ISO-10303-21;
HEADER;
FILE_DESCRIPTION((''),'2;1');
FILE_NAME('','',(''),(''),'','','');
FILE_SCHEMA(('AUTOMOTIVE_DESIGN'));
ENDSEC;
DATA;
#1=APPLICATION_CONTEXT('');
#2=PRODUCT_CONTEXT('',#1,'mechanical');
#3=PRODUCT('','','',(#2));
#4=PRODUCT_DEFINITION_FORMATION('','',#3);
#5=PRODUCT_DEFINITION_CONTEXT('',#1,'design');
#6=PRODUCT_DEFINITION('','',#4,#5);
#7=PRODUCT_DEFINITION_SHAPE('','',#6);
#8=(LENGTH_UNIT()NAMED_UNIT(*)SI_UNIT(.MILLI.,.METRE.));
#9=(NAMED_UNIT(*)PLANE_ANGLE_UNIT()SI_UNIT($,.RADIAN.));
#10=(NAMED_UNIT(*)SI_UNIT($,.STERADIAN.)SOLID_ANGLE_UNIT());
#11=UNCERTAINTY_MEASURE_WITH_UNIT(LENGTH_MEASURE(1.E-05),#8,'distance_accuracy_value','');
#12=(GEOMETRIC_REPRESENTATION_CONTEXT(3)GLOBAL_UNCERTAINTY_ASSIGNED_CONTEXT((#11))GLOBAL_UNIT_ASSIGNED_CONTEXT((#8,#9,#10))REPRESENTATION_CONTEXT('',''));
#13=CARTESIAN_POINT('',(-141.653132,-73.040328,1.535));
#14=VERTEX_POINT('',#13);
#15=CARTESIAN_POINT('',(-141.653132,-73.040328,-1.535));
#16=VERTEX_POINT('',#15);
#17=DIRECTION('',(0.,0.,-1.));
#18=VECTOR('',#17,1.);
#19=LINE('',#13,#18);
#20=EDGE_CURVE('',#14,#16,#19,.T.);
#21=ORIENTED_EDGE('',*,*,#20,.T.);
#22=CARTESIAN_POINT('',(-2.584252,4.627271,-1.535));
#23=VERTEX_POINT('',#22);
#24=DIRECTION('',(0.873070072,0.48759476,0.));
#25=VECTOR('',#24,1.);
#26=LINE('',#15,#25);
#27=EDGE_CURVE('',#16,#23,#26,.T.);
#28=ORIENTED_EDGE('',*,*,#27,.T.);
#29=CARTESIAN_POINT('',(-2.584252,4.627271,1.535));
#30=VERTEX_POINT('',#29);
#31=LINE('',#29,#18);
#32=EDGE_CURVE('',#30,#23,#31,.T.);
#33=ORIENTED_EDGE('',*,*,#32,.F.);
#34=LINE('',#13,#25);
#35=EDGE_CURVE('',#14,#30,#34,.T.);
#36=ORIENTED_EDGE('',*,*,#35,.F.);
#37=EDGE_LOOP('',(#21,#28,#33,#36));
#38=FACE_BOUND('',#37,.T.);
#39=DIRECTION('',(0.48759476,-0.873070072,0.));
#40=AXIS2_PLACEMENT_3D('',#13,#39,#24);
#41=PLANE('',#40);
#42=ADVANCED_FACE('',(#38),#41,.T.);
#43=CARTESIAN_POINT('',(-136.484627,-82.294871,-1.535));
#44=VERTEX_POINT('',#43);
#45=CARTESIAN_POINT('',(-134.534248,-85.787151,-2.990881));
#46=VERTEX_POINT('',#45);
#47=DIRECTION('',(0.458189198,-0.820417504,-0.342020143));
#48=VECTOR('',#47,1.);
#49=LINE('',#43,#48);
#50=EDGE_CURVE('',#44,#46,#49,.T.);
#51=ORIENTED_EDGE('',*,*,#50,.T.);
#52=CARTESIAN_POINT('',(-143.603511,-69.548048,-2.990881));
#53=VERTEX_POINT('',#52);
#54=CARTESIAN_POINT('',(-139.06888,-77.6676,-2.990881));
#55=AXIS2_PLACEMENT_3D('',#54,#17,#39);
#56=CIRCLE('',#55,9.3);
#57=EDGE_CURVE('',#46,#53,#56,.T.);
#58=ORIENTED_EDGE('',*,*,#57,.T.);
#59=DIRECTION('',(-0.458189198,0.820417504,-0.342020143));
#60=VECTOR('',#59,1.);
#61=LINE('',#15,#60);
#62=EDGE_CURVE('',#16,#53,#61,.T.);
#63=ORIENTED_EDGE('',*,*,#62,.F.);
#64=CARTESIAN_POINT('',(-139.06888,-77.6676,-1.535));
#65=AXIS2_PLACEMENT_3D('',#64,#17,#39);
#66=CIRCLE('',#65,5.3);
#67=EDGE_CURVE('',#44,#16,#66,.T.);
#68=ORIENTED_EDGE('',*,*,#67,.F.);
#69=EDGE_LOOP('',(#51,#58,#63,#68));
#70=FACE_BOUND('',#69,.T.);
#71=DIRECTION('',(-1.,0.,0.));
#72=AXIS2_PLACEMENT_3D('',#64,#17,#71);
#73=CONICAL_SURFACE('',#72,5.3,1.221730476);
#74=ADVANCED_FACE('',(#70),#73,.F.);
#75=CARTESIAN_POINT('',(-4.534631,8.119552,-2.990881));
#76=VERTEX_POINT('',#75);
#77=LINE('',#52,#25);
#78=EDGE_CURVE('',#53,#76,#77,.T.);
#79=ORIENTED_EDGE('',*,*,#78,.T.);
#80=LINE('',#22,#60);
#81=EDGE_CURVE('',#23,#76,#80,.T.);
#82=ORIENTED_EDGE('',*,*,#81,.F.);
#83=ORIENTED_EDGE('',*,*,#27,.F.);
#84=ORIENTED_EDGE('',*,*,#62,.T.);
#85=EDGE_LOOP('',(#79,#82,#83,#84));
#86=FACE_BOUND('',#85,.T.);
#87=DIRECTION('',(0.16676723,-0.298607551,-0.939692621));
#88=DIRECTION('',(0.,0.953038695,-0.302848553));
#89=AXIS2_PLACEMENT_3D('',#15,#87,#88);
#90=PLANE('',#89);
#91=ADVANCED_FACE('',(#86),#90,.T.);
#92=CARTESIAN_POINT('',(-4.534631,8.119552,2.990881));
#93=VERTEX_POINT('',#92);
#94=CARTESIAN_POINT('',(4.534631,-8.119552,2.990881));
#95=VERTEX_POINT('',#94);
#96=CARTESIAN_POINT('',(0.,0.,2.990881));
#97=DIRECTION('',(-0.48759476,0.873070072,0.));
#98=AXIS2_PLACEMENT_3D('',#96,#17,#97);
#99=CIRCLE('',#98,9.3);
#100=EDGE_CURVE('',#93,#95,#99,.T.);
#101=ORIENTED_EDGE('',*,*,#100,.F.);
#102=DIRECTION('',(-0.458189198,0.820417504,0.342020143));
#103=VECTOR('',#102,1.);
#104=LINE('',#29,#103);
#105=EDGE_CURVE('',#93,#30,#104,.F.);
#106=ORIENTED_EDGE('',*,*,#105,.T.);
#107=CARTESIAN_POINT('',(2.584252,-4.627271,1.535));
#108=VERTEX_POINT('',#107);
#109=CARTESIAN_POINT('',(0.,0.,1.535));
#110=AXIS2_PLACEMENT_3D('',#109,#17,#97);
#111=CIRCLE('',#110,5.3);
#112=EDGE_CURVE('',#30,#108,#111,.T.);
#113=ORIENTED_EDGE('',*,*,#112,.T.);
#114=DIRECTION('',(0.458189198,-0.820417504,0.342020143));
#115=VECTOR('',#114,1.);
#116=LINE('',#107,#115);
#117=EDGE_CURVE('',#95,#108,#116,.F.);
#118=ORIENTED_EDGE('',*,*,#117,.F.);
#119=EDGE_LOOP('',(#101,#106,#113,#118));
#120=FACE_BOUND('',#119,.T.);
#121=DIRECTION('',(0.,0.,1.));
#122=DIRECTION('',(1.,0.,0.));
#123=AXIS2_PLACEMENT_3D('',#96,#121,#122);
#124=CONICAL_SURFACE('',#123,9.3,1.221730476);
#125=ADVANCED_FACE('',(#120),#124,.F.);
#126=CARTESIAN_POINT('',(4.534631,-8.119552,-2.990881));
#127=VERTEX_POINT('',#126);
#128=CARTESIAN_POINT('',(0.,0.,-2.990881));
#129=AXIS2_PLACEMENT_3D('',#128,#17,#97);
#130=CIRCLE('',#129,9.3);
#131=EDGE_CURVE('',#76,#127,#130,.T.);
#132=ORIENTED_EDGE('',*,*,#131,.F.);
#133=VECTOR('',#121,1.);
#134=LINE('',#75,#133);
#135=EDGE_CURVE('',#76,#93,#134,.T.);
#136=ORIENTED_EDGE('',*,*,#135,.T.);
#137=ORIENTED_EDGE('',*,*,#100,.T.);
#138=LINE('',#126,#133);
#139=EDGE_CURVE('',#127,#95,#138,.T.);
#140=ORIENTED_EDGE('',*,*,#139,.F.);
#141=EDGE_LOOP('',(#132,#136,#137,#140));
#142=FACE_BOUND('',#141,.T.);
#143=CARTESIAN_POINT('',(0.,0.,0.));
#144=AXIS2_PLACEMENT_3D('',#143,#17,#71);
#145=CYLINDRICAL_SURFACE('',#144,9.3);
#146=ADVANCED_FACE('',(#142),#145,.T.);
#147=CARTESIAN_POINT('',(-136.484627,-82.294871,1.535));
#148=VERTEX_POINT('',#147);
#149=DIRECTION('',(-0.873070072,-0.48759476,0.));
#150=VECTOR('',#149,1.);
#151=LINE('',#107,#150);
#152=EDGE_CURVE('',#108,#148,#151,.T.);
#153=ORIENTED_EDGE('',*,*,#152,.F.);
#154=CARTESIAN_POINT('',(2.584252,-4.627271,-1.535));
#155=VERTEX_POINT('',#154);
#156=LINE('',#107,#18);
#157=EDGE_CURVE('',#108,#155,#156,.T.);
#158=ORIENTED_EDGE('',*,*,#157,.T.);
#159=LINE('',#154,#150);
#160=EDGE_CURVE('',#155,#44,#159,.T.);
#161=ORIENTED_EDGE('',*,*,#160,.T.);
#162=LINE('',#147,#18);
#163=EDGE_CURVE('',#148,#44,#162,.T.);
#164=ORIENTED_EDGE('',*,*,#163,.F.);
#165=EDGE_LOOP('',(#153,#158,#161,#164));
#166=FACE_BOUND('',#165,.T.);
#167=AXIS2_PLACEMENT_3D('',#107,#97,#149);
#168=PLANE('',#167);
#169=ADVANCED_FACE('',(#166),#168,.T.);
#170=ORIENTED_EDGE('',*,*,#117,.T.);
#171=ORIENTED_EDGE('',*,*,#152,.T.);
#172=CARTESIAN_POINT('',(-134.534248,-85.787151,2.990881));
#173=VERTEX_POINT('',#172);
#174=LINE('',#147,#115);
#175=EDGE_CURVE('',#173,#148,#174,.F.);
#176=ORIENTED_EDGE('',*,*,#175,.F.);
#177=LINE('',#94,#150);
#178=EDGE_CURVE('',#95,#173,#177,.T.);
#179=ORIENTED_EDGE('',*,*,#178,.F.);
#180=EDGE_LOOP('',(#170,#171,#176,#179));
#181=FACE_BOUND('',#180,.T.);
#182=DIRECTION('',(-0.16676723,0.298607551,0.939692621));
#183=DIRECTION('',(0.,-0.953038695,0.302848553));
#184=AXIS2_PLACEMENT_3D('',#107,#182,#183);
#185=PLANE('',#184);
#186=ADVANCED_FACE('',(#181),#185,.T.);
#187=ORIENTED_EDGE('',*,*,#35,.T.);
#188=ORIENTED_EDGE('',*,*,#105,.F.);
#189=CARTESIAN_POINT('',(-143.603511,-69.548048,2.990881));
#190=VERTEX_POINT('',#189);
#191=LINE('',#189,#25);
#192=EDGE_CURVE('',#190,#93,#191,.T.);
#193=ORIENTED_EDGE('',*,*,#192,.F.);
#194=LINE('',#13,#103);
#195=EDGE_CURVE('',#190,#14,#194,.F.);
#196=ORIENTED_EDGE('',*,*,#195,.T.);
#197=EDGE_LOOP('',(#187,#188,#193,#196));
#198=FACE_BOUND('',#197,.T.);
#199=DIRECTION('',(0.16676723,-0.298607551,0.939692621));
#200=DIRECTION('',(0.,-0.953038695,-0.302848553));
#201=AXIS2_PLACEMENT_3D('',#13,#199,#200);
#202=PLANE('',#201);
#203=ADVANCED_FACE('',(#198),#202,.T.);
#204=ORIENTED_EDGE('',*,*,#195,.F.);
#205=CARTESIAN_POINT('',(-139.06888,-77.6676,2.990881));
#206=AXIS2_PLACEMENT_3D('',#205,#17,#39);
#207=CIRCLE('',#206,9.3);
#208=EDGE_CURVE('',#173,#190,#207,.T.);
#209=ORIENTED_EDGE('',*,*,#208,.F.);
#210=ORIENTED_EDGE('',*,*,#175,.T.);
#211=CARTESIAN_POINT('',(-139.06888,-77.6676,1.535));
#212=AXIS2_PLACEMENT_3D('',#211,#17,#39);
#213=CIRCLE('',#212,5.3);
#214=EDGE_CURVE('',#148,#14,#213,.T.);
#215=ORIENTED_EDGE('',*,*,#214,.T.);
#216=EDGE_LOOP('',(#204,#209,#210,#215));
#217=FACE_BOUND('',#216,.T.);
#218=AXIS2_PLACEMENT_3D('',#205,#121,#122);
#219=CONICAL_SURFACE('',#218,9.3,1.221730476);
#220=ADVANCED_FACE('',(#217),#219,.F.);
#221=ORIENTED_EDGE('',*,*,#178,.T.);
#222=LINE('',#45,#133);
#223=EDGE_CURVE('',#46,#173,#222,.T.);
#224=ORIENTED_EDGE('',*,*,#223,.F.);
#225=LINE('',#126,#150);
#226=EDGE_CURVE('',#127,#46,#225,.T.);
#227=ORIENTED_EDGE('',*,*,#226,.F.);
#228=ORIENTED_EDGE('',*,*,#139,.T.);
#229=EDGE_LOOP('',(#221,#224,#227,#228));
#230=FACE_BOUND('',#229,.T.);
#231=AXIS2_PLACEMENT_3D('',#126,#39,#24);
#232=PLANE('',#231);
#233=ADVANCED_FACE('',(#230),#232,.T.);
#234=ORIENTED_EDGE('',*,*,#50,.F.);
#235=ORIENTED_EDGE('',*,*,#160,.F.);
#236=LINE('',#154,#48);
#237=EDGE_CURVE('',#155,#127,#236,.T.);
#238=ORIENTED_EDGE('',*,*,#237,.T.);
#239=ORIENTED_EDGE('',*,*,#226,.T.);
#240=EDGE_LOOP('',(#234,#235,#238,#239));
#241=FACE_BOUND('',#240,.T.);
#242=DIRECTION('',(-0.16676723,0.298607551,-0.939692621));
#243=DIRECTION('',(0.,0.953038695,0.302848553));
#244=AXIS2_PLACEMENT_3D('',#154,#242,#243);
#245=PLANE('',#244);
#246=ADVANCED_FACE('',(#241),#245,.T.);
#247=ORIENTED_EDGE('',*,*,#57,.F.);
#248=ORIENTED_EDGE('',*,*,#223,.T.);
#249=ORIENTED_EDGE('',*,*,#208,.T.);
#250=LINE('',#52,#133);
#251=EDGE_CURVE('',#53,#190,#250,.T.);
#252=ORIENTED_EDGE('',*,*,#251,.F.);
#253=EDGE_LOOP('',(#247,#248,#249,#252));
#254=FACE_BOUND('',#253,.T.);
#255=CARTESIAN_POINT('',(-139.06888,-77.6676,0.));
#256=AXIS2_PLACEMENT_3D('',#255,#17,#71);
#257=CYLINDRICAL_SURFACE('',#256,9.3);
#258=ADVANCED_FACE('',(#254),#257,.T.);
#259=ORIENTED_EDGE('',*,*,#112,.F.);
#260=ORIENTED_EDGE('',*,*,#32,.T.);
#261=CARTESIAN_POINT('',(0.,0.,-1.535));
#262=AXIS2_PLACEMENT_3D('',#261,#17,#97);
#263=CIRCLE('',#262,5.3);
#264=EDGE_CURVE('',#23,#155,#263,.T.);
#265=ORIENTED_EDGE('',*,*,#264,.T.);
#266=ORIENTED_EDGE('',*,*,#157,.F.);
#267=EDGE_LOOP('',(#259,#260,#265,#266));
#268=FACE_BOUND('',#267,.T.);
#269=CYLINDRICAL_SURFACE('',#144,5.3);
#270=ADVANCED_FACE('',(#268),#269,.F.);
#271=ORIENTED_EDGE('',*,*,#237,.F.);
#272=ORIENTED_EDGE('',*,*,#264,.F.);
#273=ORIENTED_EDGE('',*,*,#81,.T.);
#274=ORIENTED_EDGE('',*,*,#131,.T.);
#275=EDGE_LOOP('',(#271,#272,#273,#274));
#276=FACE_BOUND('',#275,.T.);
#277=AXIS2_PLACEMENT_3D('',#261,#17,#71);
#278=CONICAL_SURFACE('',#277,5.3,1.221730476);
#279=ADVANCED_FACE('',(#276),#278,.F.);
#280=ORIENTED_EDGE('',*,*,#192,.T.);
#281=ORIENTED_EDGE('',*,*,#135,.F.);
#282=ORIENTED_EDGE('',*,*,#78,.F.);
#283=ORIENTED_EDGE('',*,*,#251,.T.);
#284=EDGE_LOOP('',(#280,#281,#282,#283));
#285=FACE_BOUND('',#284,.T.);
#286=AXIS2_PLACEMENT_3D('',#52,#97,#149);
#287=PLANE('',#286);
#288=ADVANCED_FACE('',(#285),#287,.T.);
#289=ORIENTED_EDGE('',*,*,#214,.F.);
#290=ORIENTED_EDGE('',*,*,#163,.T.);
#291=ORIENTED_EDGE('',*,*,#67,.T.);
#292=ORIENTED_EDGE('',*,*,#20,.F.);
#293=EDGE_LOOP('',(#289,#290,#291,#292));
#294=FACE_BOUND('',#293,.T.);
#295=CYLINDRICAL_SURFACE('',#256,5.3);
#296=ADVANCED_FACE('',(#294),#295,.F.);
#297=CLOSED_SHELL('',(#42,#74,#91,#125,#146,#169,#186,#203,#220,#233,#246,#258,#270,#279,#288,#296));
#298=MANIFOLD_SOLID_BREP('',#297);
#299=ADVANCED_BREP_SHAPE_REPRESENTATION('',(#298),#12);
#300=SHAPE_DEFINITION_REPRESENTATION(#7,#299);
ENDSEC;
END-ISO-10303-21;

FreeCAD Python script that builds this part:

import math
import FreeCAD as App
import Part
import Sketcher
Q = App.Units.Quantity


def add_polygon(sketch, points):
    """Adds a closed chain of lines whose ends are joined by coincident constraints."""
    first, n = sketch.GeometryCount, len(points)
    for a, b in zip(points, points[1:] + points[:1]):
        sketch.addGeometry(Part.LineSegment(App.Vector(*a, 0), App.Vector(*b, 0)), False)
    for i in range(n):
        sketch.addConstraint(Sketcher.Constraint("Coincident", first + i, 2, first + (i + 1) % n, 1))

doc = App.newDocument("Part")
params = doc.addObject("Spreadsheet::Sheet", "Params")
for row, (alias, value) in enumerate([
    ("sketch1_width", "3.07 mm"),
    ("sketch2_radius", "5.3 mm"),
], start=1):
    params.set(f"A{row}", alias)
    params.set(f"B{row}", "=" + value)
    params.setAlias(f"B{row}", alias)

body = doc.addObject("PartDesign::Body", "Body")

# Sketch on an angled plane
sketch1 = body.newObject("Sketcher::SketchObject", "Sketch")
sketch1.Placement = App.Placement(App.Vector(0, 0, 0), App.Rotation(App.Vector(0, 0, -1), App.Vector(-0.48759476, 0.873070072, 0), App.Vector(0.873070072, 0.48759476, 0), "ZXY"))
add_polygon(sketch1, [(-1.5, 5.3), (1.5, 5.3), (3, 9.3), (-3, 9.3)])  # lines 0-3
sketch1.addConstraint([
    Sketcher.Constraint("Horizontal", 0),
    Sketcher.Constraint("Horizontal", 2),
    Sketcher.Constraint("Equal", 1, 3),
    Sketcher.Constraint("Angle", 1, Q("70 deg")),
    Sketcher.Constraint("DistanceY", 0, 2, 1, 2, 4.0),
    Sketcher.Constraint("DistanceX", 0, 1, 0, 2, 3.07),
    Sketcher.Constraint("DistanceY", -1, 1, 0, 2, 5.3),
    Sketcher.Constraint("DistanceX", -1, 1, 0, 2, 1.535),
])
sketch1.setExpression("Constraints[9]", "Params.sketch1_width")

# Sketch on XY plane
sketch2 = body.newObject("Sketcher::SketchObject", "Sketch001")
sketch2.AttachmentSupport = (doc.getObject("XY_Plane"), [""])
sketch2.MapMode = "FlatFace"
sketch2.addGeometry([
    Part.LineSegment(App.Vector(3, -5, 0), App.Vector(-136, -82, 0)),
    Part.ArcOfCircle(Part.Circle(App.Vector(-139, -78, 0), App.Vector(0, 0, 1), 5), math.radians(119), math.radians(299)),
    Part.LineSegment(App.Vector(-142, -73, 0), App.Vector(-3, 5, 0)),
    Part.ArcOfCircle(Part.Circle(App.Vector(0, 0, 0), App.Vector(0, 0, 1), 5), math.radians(-61), math.radians(119)),
], False)
sketch2.addConstraint([
    Sketcher.Constraint("Tangent", 0, 2, 1, 2),
    Sketcher.Constraint("Tangent", 1, 1, 2, 1),
    Sketcher.Constraint("Tangent", 2, 2, 3, 2),
    Sketcher.Constraint("Tangent", 3, 1, 0, 1),
    Sketcher.Constraint("Coincident", 3, 3, -1, 1),
    Sketcher.Constraint("Equal", 1, 3),
    Sketcher.Constraint("Radius", 1, 5.3),
    Sketcher.Constraint("DistanceY", 1, 3, -1, 1, 77.6676),
    Sketcher.Constraint("Distance", 0, 159.287191),
])
sketch2.setExpression("Constraints[6]", "Params.sketch2_radius")
doc.recompute()

additivepipe = body.newObject("PartDesign::AdditivePipe", "AdditivePipe")
additivepipe.Profile = sketch1
additivepipe.Spine = (sketch2, ["Edge1", "Edge2", "Edge3", "Edge4"])

doc.recompute()
